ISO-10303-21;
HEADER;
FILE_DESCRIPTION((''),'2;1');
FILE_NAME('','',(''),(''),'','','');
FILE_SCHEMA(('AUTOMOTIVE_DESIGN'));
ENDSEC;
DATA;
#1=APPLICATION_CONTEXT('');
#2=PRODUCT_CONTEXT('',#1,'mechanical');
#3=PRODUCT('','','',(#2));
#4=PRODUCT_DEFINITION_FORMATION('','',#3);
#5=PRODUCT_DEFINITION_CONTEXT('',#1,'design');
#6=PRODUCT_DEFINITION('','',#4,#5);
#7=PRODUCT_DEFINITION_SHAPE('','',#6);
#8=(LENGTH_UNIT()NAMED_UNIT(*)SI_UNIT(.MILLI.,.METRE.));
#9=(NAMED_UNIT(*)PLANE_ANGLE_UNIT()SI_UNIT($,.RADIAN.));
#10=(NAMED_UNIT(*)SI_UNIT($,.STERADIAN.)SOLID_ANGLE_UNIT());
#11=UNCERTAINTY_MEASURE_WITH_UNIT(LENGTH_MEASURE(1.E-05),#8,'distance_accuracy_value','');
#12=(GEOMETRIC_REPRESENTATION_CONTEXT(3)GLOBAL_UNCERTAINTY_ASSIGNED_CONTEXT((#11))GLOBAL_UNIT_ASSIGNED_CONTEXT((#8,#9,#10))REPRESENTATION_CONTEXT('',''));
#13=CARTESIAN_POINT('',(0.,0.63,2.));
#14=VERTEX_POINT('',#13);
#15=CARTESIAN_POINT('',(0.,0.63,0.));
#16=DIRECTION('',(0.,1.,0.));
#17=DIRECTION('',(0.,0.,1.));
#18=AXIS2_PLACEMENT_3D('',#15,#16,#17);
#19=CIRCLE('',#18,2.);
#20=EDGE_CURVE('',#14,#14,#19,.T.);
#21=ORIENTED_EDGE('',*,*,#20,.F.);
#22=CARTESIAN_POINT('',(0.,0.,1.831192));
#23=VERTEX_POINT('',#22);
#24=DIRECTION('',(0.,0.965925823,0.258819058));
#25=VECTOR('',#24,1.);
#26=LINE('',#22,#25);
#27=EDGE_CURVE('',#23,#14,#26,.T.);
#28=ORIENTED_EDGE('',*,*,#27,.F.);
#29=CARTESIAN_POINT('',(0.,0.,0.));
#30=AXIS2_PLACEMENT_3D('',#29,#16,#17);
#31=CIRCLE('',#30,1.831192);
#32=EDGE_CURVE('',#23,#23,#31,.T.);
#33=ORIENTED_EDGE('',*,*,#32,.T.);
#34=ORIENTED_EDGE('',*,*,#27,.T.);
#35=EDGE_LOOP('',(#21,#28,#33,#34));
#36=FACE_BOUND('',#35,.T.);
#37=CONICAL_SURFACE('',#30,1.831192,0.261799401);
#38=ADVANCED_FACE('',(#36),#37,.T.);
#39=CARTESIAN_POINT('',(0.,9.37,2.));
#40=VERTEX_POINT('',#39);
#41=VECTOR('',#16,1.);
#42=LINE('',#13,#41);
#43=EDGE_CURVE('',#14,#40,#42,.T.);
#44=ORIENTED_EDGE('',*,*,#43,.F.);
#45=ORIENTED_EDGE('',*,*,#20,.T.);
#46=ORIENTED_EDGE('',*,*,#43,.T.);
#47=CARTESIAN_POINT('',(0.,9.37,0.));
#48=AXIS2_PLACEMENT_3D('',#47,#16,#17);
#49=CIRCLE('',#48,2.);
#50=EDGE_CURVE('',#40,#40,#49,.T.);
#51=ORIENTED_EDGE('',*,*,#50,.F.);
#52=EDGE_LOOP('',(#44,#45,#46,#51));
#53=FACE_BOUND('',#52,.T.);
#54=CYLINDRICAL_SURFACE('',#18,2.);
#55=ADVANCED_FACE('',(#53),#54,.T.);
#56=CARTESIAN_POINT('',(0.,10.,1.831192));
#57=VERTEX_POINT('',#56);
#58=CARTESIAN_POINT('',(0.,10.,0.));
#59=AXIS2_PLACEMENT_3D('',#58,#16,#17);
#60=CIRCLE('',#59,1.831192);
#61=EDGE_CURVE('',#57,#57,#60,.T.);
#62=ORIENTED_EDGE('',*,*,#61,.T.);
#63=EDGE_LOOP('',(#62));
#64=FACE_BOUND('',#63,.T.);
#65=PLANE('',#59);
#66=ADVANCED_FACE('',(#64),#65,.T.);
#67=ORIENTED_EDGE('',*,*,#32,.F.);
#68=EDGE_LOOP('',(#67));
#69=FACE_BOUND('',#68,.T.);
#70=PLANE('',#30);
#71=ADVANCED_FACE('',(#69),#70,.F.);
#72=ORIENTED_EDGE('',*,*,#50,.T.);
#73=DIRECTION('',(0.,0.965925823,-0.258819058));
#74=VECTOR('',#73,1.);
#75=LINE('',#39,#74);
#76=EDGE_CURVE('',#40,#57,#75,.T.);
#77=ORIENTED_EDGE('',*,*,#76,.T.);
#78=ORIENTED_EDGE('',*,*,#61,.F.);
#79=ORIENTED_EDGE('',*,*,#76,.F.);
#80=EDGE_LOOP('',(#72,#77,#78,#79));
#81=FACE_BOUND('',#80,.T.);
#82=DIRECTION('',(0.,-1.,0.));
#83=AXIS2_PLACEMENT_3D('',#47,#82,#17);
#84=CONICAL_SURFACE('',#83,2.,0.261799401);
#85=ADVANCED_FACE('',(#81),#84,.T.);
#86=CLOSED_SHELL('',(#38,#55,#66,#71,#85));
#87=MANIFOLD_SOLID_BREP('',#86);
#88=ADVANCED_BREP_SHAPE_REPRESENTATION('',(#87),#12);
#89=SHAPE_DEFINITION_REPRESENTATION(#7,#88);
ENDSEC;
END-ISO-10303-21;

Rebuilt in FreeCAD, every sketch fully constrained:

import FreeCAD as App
import Part
import Sketcher

V = App.Vector
Q = App.Units.Quantity

doc = App.newDocument("Part")
body = doc.addObject("PartDesign::Body", "Body")

# Sketch on YZ plane
sketch1 = body.newObject("Sketcher::SketchObject", "Sketch")
sketch1.AttachmentSupport = (doc.getObject("YZ_Plane"), [""])
sketch1.MapMode = "FlatFace"
sketch1.addGeometry(Part.LineSegment(V(0, 1.8, 0), V(0, 0, 0)), False)
sketch1.addGeometry(Part.LineSegment(V(0, 0, 0), V(10, 0, 0)), False)
sketch1.addGeometry(Part.LineSegment(V(10, 0, 0), V(10, 1.8, 0)), False)
sketch1.addGeometry(Part.LineSegment(V(10, 1.8, 0), V(9.4, 2, 0)), False)
sketch1.addGeometry(Part.LineSegment(V(9.4, 2, 0), V(0.6, 2, 0)), False)
sketch1.addGeometry(Part.LineSegment(V(0.6, 2, 0), V(0, 1.8, 0)), False)
sketch1.addConstraint(Sketcher.Constraint("Coincident", 0, 2, 1, 1))
sketch1.addConstraint(Sketcher.Constraint("Coincident", 1, 2, 2, 1))
sketch1.addConstraint(Sketcher.Constraint("Coincident", 2, 2, 3, 1))
sketch1.addConstraint(Sketcher.Constraint("Coincident", 3, 2, 4, 1))
sketch1.addConstraint(Sketcher.Constraint("Coincident", 4, 2, 5, 1))
sketch1.addConstraint(Sketcher.Constraint("Coincident", 5, 2, 0, 1))
sketch1.addConstraint(Sketcher.Constraint("Vertical", 0))
sketch1.addConstraint(Sketcher.Constraint("Horizontal", 1))
sketch1.addConstraint(Sketcher.Constraint("Vertical", 2))
sketch1.addConstraint(Sketcher.Constraint("Horizontal", 4))
sketch1.addConstraint(Sketcher.Constraint("Coincident", 0, 2, -1, 1))
sketch1.addConstraint(Sketcher.Constraint("Horizontal", 2, 2, 5, 2))
sketch1.addConstraint(Sketcher.Constraint("Equal", 3, 5))
sketch1.addConstraint(Sketcher.Constraint("DistanceX", 1, 1, 1, 2, Q("10 mm")))
sketch1.addConstraint(Sketcher.Constraint("Angle", 3, Q("164.999999 deg")))
sketch1.addConstraint(Sketcher.Constraint("DistanceY", -1, 1, 3, 2, Q("2 mm")))
sketch1.addConstraint(Sketcher.Constraint("DistanceX", 4, 2, 4, 1, Q("8.74 mm")))
revolution = body.newObject("PartDesign::Revolution", "Revolution")
revolution.Profile = sketch1
revolution.ReferenceAxis = (sketch1, ["H_Axis"])
revolution.Angle = 360

doc.recompute()
